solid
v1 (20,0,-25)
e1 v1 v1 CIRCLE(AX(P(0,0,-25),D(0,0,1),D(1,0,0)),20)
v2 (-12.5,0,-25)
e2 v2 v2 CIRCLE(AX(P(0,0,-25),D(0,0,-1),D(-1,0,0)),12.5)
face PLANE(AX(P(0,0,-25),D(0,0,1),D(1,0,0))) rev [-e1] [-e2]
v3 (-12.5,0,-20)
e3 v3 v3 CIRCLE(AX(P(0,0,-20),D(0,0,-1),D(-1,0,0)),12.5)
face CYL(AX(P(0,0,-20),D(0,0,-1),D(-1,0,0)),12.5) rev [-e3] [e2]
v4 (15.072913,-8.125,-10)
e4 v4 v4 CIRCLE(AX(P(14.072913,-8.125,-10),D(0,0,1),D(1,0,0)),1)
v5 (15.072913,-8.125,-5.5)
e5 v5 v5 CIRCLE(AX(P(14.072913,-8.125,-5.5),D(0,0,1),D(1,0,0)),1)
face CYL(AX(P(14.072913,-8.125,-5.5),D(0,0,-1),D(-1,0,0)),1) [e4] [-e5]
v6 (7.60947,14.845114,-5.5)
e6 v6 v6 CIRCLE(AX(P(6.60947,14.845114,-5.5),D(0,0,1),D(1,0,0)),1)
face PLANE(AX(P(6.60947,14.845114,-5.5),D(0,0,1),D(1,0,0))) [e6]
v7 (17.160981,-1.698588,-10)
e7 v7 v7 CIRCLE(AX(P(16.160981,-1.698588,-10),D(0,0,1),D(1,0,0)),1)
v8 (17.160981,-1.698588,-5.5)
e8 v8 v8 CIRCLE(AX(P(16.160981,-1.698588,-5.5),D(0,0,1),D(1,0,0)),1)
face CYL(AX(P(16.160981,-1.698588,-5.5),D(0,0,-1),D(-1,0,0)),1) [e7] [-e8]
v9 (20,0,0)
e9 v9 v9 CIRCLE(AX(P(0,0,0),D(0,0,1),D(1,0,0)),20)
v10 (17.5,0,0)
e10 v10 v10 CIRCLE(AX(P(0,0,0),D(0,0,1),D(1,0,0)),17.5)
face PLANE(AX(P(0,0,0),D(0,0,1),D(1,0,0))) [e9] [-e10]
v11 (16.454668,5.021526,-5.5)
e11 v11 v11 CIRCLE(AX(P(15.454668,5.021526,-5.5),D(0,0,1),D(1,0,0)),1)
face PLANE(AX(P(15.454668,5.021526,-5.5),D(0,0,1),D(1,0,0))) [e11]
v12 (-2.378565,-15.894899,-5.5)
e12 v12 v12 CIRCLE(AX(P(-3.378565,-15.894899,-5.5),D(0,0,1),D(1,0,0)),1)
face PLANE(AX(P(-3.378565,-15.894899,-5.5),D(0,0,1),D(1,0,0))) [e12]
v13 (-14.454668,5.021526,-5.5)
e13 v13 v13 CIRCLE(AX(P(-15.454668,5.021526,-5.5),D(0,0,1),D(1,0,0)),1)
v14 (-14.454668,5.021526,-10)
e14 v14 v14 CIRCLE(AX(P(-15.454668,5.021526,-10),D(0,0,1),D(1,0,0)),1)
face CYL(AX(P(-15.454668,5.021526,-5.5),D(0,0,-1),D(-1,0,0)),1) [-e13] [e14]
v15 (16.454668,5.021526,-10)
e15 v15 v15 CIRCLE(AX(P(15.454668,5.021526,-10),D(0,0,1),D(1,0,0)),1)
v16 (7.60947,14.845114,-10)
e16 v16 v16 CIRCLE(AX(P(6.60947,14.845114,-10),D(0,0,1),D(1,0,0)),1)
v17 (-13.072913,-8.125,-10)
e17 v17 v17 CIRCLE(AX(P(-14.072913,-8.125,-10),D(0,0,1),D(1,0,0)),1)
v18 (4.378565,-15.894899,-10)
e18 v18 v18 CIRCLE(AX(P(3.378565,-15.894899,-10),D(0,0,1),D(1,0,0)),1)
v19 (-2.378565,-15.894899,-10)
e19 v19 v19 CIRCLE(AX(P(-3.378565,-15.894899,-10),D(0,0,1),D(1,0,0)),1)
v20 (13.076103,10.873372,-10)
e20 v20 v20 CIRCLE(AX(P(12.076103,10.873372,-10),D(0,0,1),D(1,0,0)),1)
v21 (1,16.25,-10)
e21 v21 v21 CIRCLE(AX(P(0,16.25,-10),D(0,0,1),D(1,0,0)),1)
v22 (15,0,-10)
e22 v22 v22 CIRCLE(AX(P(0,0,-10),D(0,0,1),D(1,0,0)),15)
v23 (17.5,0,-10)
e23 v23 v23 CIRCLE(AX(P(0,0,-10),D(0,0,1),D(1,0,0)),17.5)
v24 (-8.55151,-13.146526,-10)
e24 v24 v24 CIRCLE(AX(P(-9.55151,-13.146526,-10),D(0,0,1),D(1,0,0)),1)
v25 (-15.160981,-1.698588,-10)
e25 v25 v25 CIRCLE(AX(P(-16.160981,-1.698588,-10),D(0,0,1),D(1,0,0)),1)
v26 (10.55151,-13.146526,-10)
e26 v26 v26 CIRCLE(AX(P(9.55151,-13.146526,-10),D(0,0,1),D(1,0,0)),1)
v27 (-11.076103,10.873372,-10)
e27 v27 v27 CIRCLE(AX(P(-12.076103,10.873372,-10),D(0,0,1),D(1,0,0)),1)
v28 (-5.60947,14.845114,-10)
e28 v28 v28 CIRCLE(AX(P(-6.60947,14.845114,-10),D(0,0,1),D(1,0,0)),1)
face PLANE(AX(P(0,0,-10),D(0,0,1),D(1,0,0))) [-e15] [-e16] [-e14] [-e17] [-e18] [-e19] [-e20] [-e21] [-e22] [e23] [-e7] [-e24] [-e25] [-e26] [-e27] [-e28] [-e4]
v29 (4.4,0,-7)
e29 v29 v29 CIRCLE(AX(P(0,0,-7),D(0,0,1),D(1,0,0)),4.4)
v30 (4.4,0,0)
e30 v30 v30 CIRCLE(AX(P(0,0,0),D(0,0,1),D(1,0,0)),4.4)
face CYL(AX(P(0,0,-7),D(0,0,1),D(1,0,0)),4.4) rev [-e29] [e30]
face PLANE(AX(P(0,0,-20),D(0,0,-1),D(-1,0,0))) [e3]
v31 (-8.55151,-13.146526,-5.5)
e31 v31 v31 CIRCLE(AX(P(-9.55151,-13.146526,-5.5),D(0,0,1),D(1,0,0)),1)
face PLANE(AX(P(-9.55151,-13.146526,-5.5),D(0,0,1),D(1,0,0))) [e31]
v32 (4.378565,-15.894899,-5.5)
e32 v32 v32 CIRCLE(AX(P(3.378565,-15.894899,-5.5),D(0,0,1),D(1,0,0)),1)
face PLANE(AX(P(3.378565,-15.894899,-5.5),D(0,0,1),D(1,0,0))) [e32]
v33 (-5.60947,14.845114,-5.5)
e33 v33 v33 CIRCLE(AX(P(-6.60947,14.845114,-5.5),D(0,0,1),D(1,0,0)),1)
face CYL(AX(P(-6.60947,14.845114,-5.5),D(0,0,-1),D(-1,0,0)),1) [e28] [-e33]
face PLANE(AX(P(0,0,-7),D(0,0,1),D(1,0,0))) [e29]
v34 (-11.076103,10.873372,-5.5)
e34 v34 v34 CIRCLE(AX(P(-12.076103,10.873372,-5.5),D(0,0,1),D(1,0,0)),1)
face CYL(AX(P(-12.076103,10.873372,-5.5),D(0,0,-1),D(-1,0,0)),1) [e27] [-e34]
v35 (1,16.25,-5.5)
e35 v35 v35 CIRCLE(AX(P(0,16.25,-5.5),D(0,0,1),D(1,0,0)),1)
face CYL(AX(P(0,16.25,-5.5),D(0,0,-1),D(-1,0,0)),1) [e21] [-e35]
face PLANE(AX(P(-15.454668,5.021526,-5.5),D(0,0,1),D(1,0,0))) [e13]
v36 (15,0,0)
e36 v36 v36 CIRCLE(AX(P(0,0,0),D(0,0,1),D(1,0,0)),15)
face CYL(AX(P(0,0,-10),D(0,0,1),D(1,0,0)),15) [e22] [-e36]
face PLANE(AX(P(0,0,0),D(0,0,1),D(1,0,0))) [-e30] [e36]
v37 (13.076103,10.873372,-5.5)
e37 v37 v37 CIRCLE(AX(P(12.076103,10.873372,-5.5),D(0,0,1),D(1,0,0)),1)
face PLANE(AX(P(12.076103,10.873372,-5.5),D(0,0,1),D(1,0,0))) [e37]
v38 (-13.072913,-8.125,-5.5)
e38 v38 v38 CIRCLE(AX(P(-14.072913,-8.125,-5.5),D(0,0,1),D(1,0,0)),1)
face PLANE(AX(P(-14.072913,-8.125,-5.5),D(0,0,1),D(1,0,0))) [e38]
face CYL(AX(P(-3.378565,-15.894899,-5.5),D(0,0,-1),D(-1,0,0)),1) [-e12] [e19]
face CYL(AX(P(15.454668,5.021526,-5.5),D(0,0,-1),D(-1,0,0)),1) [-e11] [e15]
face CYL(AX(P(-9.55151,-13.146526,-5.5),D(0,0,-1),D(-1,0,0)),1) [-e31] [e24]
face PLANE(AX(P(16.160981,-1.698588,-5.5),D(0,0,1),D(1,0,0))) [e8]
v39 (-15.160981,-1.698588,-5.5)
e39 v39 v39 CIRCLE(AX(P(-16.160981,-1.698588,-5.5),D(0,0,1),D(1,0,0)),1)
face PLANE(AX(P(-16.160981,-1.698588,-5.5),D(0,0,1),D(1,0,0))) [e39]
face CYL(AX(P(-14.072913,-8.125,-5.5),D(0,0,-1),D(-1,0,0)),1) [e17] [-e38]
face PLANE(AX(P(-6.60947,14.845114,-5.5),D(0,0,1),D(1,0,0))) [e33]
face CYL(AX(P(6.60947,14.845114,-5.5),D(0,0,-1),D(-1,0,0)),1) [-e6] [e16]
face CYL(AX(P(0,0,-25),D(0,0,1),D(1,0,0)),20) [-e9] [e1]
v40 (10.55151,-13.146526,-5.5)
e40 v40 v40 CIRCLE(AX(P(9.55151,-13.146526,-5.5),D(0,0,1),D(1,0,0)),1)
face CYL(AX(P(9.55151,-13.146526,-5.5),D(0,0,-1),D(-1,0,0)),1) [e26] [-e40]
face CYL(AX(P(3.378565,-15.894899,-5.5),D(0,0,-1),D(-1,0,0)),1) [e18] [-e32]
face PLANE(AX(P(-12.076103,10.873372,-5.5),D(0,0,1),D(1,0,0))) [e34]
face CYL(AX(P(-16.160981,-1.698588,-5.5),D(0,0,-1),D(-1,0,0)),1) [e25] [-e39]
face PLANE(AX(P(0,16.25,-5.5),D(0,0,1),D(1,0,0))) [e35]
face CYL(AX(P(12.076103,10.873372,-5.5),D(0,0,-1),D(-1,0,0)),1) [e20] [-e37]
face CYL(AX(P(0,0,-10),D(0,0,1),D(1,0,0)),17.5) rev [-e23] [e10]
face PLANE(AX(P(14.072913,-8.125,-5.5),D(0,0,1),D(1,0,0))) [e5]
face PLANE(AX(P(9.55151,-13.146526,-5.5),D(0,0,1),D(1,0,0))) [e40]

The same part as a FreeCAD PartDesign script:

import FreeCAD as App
import Part
import Sketcher

doc = App.newDocument("Part")
body = doc.addObject("PartDesign::Body", "Body")

# Sketch on XY plane
sketch1 = doc.addObject("Sketcher::SketchObject", "Sketch")
body.addObject(sketch1)
sketch1.AttachmentSupport = (doc.XY_Plane, [""])
sketch1.MapMode = "FlatFace"
sketch1.addGeometry(Part.Circle(App.Vector(0, 0, 0), App.Vector(0, 0, 1), 20), False)
sketch1.addConstraint([
    Sketcher.Constraint("Coincident", 0, 3, -1, 1),
    Sketcher.Constraint("Diameter", 0, 40.0),
])
pad1 = doc.addObject("PartDesign::Pad", "Pad")
body.addObject(pad1)
pad1.Profile = sketch1
pad1.Length = 25
pad1.Reversed = True

# Sketch on XY plane
sketch2 = doc.addObject("Sketcher::SketchObject", "Sketch001")
body.addObject(sketch2)
sketch2.AttachmentSupport = (doc.XY_Plane, [""])
sketch2.MapMode = "FlatFace"
sketch2.addGeometry([
    Part.Circle(App.Vector(0, 0, 0), App.Vector(0, 0, 1), 17.5),
    Part.Circle(App.Vector(0, 0, 0), App.Vector(0, 0, 1), 15),
], False)
sketch2.addConstraint([
    Sketcher.Constraint("Coincident", 0, 3, -1, 1),
    Sketcher.Constraint("Coincident", 1, 3, -1, 1),
    Sketcher.Constraint("Diameter", 0, 35.0),
    Sketcher.Constraint("Diameter", 1, 30.0),
])
pocket1 = doc.addObject("PartDesign::Pocket", "Pocket")
body.addObject(pocket1)
pocket1.Profile = sketch2
pocket1.Length = 10

# Sketch on XY plane
sketch3 = doc.addObject("Sketcher::SketchObject", "Sketch002")
body.addObject(sketch3)
sketch3.AttachmentSupport = (doc.XY_Plane, [""])
sketch3.MapMode = "FlatFace"
sketch3.addGeometry(Part.Circle(App.Vector(0, 0, 0), App.Vector(0, 0, 1), 4.4), False)
sketch3.addConstraint([
    Sketcher.Constraint("Coincident", 0, 3, -1, 1),
    Sketcher.Constraint("Diameter", 0, 8.8),
])
pocket2 = doc.addObject("PartDesign::Pocket", "Pocket001")
body.addObject(pocket2)
pocket2.Profile = sketch3
pocket2.Length = 7

# Sketch on XY plane
sketch4 = doc.addObject("Sketcher::SketchObject", "Sketch003")
body.addObject(sketch4)
sketch4.AttachmentSupport = (doc.XY_Plane, [""])
sketch4.MapMode = "FlatFace"
sketch4.AttachmentOffset = App.Placement(App.Vector(0, 0, -25), App.Rotation())
sketch4.addGeometry(Part.Circle(App.Vector(0, 0, 0), App.Vector(0, 0, 1), 12.5), False)
sketch4.addConstraint([
    Sketcher.Constraint("Coincident", 0, 3, -1, 1),
    Sketcher.Constraint("Diameter", 0, 25.0),
])
pocket3 = doc.addObject("PartDesign::Pocket", "Pocket002")
body.addObject(pocket3)
pocket3.Profile = sketch4
pocket3.Length = 5
pocket3.Reversed = True

# Sketch on XY plane
sketch5 = doc.addObject("Sketcher::SketchObject", "Sketch004")
body.addObject(sketch5)
sketch5.AttachmentSupport = (doc.XY_Plane, [""])
sketch5.MapMode = "FlatFace"
sketch5.AttachmentOffset = App.Placement(App.Vector(0, 0, -10), App.Rotation())
sketch5.addGeometry([
    Part.Circle(App.Vector(0, 16.25, 0), App.Vector(0, 0, 1), 1),  # 0
    Part.Circle(App.Vector(6.60947, 14.845114, 0), App.Vector(0, 0, 1), 1),  # 1
    Part.Circle(App.Vector(12.076103, 10.873372, 0), App.Vector(0, 0, 1), 1),  # 2
    Part.Circle(App.Vector(15.454668, 5.021526, 0), App.Vector(0, 0, 1), 1),  # 3
    Part.Circle(App.Vector(16.160981, -1.698588, 0), App.Vector(0, 0, 1), 1),  # 4
    Part.Circle(App.Vector(14.072913, -8.125, 0), App.Vector(0, 0, 1), 1),  # 5
    Part.Circle(App.Vector(9.55151, -13.146526, 0), App.Vector(0, 0, 1), 1),  # 6
    Part.Circle(App.Vector(3.378565, -15.894899, 0), App.Vector(0, 0, 1), 1),  # 7
    Part.Circle(App.Vector(-3.378565, -15.894899, 0), App.Vector(0, 0, 1), 1),  # 8
    Part.Circle(App.Vector(-9.55151, -13.146526, 0), App.Vector(0, 0, 1), 1),  # 9
    Part.Circle(App.Vector(-14.072913, -8.125, 0), App.Vector(0, 0, 1), 1),  # 10
    Part.Circle(App.Vector(-16.160981, -1.698588, 0), App.Vector(0, 0, 1), 1),  # 11
    Part.Circle(App.Vector(-15.454668, 5.021526, 0), App.Vector(0, 0, 1), 1),  # 12
    Part.Circle(App.Vector(-12.076103, 10.873372, 0), App.Vector(0, 0, 1), 1),  # 13
    Part.Circle(App.Vector(-6.60947, 14.845114, 0), App.Vector(0, 0, 1), 1),  # 14
], False)
sketch5.addConstraint([
    Sketcher.Constraint("Equal", 0, 1),
    Sketcher.Constraint("Equal", 1, 2),
    Sketcher.Constraint("Equal", 2, 3),
    Sketcher.Constraint("Equal", 3, 4),
    Sketcher.Constraint("Equal", 4, 5),
    Sketcher.Constraint("Equal", 5, 6),
    Sketcher.Constraint("Equal", 6, 7),
    Sketcher.Constraint("Equal", 7, 8),
    Sketcher.Constraint("Equal", 8, 9),
    Sketcher.Constraint("Equal", 9, 10),
    Sketcher.Constraint("Equal", 10, 11),
    Sketcher.Constraint("Equal", 11, 12),
    Sketcher.Constraint("Equal", 12, 13),
    Sketcher.Constraint("Equal", 13, 14),
    Sketcher.Constraint("Symmetric", 7, 3, 8, 3, -2),
    Sketcher.Constraint("Symmetric", 6, 3, 9, 3, -2),
    Sketcher.Constraint("Symmetric", 5, 3, 10, 3, -2),
    Sketcher.Constraint("Symmetric", 4, 3, 11, 3, -2),
    Sketcher.Constraint("Symmetric", 3, 3, 12, 3, -2),
    Sketcher.Constraint("Symmetric", 2, 3, 13, 3, -2),
    Sketcher.Constraint("Symmetric", 1, 3, 14, 3, -2),
    Sketcher.Constraint("PointOnObject", 0, 3, -2),
    Sketcher.Constraint("Diameter", 0, 2.0),
    Sketcher.Constraint("DistanceY", -1, 1, 0, 3, 16.25),
    Sketcher.Constraint("DistanceY", 5, 3, -1, 1, 8.125),
    Sketcher.Constraint("DistanceY", 7, 3, -1, 1, 15.894899),
    Sketcher.Constraint("DistanceY", 4, 3, 1, 3, 16.543701),
    Sketcher.Constraint("DistanceY", 6, 3, 2, 3, 24.019899),
    Sketcher.Constraint("DistanceX", -1, 1, 1, 3, 6.60947),
    Sketcher.Constraint("DistanceX", -1, 1, 3, 3, 15.454668),
    Sketcher.Constraint("DistanceX", -1, 1, 4, 3, 16.160981),
    Sketcher.Constraint("DistanceX", -1, 1, 6, 3, 9.55151),
    Sketcher.Constraint("DistanceY", 2, 3, 1, 3, 3.971741),
    Sketcher.Constraint("DistanceX", 2, 3, 5, 3, 1.996809),
    Sketcher.Constraint("DistanceY", 7, 3, 4, 3, 14.196311),
    Sketcher.Constraint("DistanceX", 7, 3, 2, 3, 8.697538),
    Sketcher.Constraint("DistanceX", 8, 3, 7, 3, 6.75713),
    Sketcher.Constraint("DistanceY", -1, 1, 3, 3, 5.021526),
])
pad2 = doc.addObject("PartDesign::Pad", "Pad001")
body.addObject(pad2)
pad2.Profile = sketch5
pad2.Length = 4.5

doc.recompute()
